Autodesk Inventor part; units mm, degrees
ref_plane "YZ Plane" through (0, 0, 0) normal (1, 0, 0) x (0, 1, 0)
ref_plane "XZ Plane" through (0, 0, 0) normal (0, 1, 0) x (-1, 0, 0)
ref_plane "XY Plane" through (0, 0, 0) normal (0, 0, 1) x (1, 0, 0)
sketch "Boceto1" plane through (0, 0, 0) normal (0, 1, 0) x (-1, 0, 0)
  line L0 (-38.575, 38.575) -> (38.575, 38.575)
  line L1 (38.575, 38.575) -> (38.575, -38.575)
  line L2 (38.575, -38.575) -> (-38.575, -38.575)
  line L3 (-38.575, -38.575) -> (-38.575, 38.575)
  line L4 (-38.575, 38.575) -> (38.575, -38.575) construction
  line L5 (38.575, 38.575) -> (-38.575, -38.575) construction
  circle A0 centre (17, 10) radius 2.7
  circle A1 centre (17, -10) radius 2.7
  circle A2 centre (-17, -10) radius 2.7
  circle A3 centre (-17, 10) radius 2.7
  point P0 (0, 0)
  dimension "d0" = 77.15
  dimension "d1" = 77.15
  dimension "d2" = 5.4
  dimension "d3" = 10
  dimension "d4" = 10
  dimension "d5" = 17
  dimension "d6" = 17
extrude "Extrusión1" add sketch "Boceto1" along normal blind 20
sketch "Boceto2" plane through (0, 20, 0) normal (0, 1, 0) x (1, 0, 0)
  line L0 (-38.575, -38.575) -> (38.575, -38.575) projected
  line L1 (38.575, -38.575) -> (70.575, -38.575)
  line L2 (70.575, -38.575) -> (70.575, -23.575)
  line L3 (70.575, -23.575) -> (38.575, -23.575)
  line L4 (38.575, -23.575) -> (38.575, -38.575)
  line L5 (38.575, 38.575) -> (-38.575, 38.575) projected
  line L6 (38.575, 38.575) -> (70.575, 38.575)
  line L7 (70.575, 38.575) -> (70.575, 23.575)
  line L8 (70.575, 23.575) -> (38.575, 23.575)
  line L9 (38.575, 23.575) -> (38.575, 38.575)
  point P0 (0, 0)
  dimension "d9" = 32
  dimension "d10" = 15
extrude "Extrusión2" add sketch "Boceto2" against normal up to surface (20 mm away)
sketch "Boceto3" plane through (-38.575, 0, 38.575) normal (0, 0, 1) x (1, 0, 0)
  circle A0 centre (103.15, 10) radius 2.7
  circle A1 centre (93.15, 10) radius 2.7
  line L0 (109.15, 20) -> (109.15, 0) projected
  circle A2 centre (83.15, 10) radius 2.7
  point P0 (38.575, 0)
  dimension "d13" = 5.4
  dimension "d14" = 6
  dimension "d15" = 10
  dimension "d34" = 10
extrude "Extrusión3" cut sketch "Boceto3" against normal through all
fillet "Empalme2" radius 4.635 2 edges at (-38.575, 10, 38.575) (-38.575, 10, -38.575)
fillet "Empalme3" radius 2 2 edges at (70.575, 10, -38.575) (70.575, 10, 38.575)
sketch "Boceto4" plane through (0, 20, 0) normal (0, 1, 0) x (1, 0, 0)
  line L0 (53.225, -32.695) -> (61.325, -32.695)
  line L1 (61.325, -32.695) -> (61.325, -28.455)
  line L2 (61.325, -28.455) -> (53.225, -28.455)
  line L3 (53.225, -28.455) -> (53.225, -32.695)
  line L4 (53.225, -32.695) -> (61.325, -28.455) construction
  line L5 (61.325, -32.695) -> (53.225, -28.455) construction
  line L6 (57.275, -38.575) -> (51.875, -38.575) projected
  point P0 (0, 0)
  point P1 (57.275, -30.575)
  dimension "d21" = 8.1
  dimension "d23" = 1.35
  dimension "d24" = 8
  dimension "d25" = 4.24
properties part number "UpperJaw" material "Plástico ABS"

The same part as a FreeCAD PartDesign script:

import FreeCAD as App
import Part
import Sketcher
Q = App.Units.Quantity


def edges_at(feature, points):
    """Names of the edges that pass closest to the given points."""
    edges = feature.Shape.Edges
    near = lambda p: min(range(len(edges)), key=lambda i: edges[i].distToShape(Part.Vertex(*p))[0])
    return sorted({f"Edge{near(p) + 1}" for p in points})

doc = App.newDocument("Part")
body = doc.addObject("PartDesign::Body", "Body")

# Sketch on XZ plane
sketch1 = body.newObject("Sketcher::SketchObject", "Sketch")
sketch1.AttachmentSupport = (doc.getObject("XZ_Plane"), [""])
sketch1.MapMode = "FlatFace"
sketch1.addGeometry(Part.LineSegment(App.Vector(-38.6, 38.6, 0), App.Vector(38.6, 38.6, 0)), False)
sketch1.addGeometry(Part.LineSegment(App.Vector(38.6, 38.6, 0), App.Vector(38.6, -38.6, 0)), False)
sketch1.addGeometry(Part.LineSegment(App.Vector(38.6, -38.6, 0), App.Vector(-38.6, -38.6, 0)), False)
sketch1.addGeometry(Part.LineSegment(App.Vector(-38.6, -38.6, 0), App.Vector(-38.6, 38.6, 0)), False)
sketch1.addGeometry(Part.Circle(App.Vector(17, -10, 0), App.Vector(0, 0, 1), 2.7), False)
sketch1.addGeometry(Part.Circle(App.Vector(-17, -10, 0), App.Vector(0, 0, 1), 2.7), False)
sketch1.addGeometry(Part.Circle(App.Vector(17, 10, 0), App.Vector(0, 0, 1), 2.7), False)
sketch1.addGeometry(Part.Circle(App.Vector(-17, 10, 0), App.Vector(0, 0, 1), 2.7), False)
sketch1.addConstraint(Sketcher.Constraint("Coincident", 0, 2, 1, 1))
sketch1.addConstraint(Sketcher.Constraint("Coincident", 1, 2, 2, 1))
sketch1.addConstraint(Sketcher.Constraint("Coincident", 2, 2, 3, 1))
sketch1.addConstraint(Sketcher.Constraint("Coincident", 3, 2, 0, 1))
sketch1.addConstraint(Sketcher.Constraint("Horizontal", 0))
sketch1.addConstraint(Sketcher.Constraint("Vertical", 1))
sketch1.addConstraint(Sketcher.Constraint("Horizontal", 2))
sketch1.addConstraint(Sketcher.Constraint("Vertical", 3))
sketch1.addConstraint(Sketcher.Constraint("Equal", 4, 5))
sketch1.addConstraint(Sketcher.Constraint("Equal", 5, 6))
sketch1.addConstraint(Sketcher.Constraint("Equal", 6, 7))
sketch1.addConstraint(Sketcher.Constraint("Symmetric", 5, 3, 6, 3, -1, 1))
sketch1.addConstraint(Sketcher.Constraint("Symmetric", 4, 3, 7, 3, -1, 1))
sketch1.addConstraint(Sketcher.Constraint("Symmetric", 0, 2, 2, 2, -1, 1))
sketch1.addConstraint(Sketcher.Constraint("Symmetric", 4, 3, 5, 3, -2))
sketch1.addConstraint(Sketcher.Constraint("Equal", 2, 1))
sketch1.addConstraint(Sketcher.Constraint("Diameter", 4, Q("5.4 mm")))
sketch1.addConstraint(Sketcher.Constraint("DistanceX", -1, 1, 4, 3, Q("17 mm")))
sketch1.addConstraint(Sketcher.Constraint("DistanceY", 4, 3, -1, 1, Q("10 mm")))
sketch1.addConstraint(Sketcher.Constraint("DistanceX", 0, 1, 0, 2, Q("77.15 mm")))
pad1 = body.newObject("PartDesign::Pad", "Pad")
pad1.Profile = sketch1
pad1.Length = 20
pad1.Reversed = True

# Sketch on XZ plane
sketch2 = body.newObject("Sketcher::SketchObject", "Sketch001")
sketch2.AttachmentSupport = (doc.getObject("XZ_Plane"), [""])
sketch2.MapMode = "FlatFace"
sketch2.AttachmentOffset = App.Placement(App.Vector(0, 0, -20), App.Rotation())
sketch2.addGeometry(Part.LineSegment(App.Vector(39, 24, 0), App.Vector(39, 39, 0)), False)
sketch2.addGeometry(Part.LineSegment(App.Vector(39, 39, 0), App.Vector(71, 39, 0)), False)
sketch2.addGeometry(Part.LineSegment(App.Vector(71, 39, 0), App.Vector(71, 24, 0)), False)
sketch2.addGeometry(Part.LineSegment(App.Vector(71, 24, 0), App.Vector(39, 24, 0)), False)
sketch2.addGeometry(Part.LineSegment(App.Vector(71, -39, 0), App.Vector(39, -39, 0)), False)
sketch2.addGeometry(Part.LineSegment(App.Vector(39, -39, 0), App.Vector(39, -24, 0)), False)
sketch2.addGeometry(Part.LineSegment(App.Vector(39, -24, 0), App.Vector(71, -24, 0)), False)
sketch2.addGeometry(Part.LineSegment(App.Vector(71, -24, 0), App.Vector(71, -39, 0)), False)
sketch2.addConstraint(Sketcher.Constraint("Coincident", 0, 2, 1, 1))
sketch2.addConstraint(Sketcher.Constraint("Coincident", 1, 2, 2, 1))
sketch2.addConstraint(Sketcher.Constraint("Coincident", 2, 2, 3, 1))
sketch2.addConstraint(Sketcher.Constraint("Coincident", 3, 2, 0, 1))
sketch2.addConstraint(Sketcher.Constraint("Coincident", 4, 2, 5, 1))
sketch2.addConstraint(Sketcher.Constraint("Coincident", 5, 2, 6, 1))
sketch2.addConstraint(Sketcher.Constraint("Coincident", 6, 2, 7, 1))
sketch2.addConstraint(Sketcher.Constraint("Coincident", 7, 2, 4, 1))
sketch2.addConstraint(Sketcher.Constraint("Vertical", 0))
sketch2.addConstraint(Sketcher.Constraint("Horizontal", 1))
sketch2.addConstraint(Sketcher.Constraint("Vertical", 2))
sketch2.addConstraint(Sketcher.Constraint("Horizontal", 3))
sketch2.addConstraint(Sketcher.Constraint("Horizontal", 4))
sketch2.addConstraint(Sketcher.Constraint("Vertical", 5))
sketch2.addConstraint(Sketcher.Constraint("Horizontal", 6))
sketch2.addConstraint(Sketcher.Constraint("Vertical", 7))
sketch2.addConstraint(Sketcher.Constraint("Symmetric", 0, 2, 4, 2, -1))
sketch2.addConstraint(Sketcher.Constraint("Symmetric", 2, 2, 6, 2, -1))
sketch2.addConstraint(Sketcher.Constraint("DistanceX", 1, 1, 1, 2, Q("32 mm")))
sketch2.addConstraint(Sketcher.Constraint("DistanceY", 0, 1, 0, 2, Q("15 mm")))
sketch2.addConstraint(Sketcher.Constraint("DistanceY", 4, 2, 3, 2, Q("62.15 mm")))
sketch2.addConstraint(Sketcher.Constraint("DistanceX", -1, 1, 0, 2, Q("38.575 mm")))
pad2 = body.newObject("PartDesign::Pad", "Pad001")
pad2.Profile = sketch2
pad2.Length = 20

# Sketch on XY plane
sketch3 = body.newObject("Sketcher::SketchObject", "Sketch002")
sketch3.AttachmentSupport = (doc.getObject("XY_Plane"), [""])
sketch3.MapMode = "FlatFace"
sketch3.AttachmentOffset = App.Placement(App.Vector(0, 0, 38.575), App.Rotation())
sketch3.addGeometry(Part.Circle(App.Vector(64.6, 10, 0), App.Vector(0, 0, 1), 2.7), False)
sketch3.addGeometry(Part.Circle(App.Vector(54.6, 10, 0), App.Vector(0, 0, 1), 2.7), False)
sketch3.addGeometry(Part.Circle(App.Vector(44.6, 10, 0), App.Vector(0, 0, 1), 2.7), False)
sketch3.addConstraint(Sketcher.Constraint("Equal", 0, 1))
sketch3.addConstraint(Sketcher.Constraint("Equal", 1, 2))
sketch3.addConstraint(Sketcher.Constraint("Horizontal", 0, 3, 1, 3))
sketch3.addConstraint(Sketcher.Constraint("Horizontal", 1, 3, 2, 3))
sketch3.addConstraint(Sketcher.Constraint("Diameter", 0, Q("5.4 mm")))
sketch3.addConstraint(Sketcher.Constraint("DistanceY", -1, 1, 0, 3, Q("10 mm")))
sketch3.addConstraint(Sketcher.Constraint("DistanceX", 1, 3, 0, 3, Q("10 mm")))
sketch3.addConstraint(Sketcher.Constraint("DistanceX", 2, 3, 1, 3, Q("10 mm")))
sketch3.addConstraint(Sketcher.Constraint("DistanceX", -1, 1, 0, 3, Q("64.575 mm")))
pocket1 = body.newObject("PartDesign::Pocket", "Pocket")
pocket1.Profile = sketch3
pocket1.Type = "ThroughAll"
doc.recompute()

fillet = body.newObject("PartDesign::Fillet", "Fillet")
fillet.Base = (pocket1, edges_at(pocket1, [(-38.575, 10, 38.575), (-38.575, 10, -38.575)]))
fillet.Radius = 4.635
doc.recompute()

fillet2 = body.newObject("PartDesign::Fillet", "Fillet001")
fillet2.Base = (fillet, edges_at(fillet, [(70.575, 10, -38.575), (70.575, 10, 38.575)]))
fillet2.Radius = 2

doc.recompute()
